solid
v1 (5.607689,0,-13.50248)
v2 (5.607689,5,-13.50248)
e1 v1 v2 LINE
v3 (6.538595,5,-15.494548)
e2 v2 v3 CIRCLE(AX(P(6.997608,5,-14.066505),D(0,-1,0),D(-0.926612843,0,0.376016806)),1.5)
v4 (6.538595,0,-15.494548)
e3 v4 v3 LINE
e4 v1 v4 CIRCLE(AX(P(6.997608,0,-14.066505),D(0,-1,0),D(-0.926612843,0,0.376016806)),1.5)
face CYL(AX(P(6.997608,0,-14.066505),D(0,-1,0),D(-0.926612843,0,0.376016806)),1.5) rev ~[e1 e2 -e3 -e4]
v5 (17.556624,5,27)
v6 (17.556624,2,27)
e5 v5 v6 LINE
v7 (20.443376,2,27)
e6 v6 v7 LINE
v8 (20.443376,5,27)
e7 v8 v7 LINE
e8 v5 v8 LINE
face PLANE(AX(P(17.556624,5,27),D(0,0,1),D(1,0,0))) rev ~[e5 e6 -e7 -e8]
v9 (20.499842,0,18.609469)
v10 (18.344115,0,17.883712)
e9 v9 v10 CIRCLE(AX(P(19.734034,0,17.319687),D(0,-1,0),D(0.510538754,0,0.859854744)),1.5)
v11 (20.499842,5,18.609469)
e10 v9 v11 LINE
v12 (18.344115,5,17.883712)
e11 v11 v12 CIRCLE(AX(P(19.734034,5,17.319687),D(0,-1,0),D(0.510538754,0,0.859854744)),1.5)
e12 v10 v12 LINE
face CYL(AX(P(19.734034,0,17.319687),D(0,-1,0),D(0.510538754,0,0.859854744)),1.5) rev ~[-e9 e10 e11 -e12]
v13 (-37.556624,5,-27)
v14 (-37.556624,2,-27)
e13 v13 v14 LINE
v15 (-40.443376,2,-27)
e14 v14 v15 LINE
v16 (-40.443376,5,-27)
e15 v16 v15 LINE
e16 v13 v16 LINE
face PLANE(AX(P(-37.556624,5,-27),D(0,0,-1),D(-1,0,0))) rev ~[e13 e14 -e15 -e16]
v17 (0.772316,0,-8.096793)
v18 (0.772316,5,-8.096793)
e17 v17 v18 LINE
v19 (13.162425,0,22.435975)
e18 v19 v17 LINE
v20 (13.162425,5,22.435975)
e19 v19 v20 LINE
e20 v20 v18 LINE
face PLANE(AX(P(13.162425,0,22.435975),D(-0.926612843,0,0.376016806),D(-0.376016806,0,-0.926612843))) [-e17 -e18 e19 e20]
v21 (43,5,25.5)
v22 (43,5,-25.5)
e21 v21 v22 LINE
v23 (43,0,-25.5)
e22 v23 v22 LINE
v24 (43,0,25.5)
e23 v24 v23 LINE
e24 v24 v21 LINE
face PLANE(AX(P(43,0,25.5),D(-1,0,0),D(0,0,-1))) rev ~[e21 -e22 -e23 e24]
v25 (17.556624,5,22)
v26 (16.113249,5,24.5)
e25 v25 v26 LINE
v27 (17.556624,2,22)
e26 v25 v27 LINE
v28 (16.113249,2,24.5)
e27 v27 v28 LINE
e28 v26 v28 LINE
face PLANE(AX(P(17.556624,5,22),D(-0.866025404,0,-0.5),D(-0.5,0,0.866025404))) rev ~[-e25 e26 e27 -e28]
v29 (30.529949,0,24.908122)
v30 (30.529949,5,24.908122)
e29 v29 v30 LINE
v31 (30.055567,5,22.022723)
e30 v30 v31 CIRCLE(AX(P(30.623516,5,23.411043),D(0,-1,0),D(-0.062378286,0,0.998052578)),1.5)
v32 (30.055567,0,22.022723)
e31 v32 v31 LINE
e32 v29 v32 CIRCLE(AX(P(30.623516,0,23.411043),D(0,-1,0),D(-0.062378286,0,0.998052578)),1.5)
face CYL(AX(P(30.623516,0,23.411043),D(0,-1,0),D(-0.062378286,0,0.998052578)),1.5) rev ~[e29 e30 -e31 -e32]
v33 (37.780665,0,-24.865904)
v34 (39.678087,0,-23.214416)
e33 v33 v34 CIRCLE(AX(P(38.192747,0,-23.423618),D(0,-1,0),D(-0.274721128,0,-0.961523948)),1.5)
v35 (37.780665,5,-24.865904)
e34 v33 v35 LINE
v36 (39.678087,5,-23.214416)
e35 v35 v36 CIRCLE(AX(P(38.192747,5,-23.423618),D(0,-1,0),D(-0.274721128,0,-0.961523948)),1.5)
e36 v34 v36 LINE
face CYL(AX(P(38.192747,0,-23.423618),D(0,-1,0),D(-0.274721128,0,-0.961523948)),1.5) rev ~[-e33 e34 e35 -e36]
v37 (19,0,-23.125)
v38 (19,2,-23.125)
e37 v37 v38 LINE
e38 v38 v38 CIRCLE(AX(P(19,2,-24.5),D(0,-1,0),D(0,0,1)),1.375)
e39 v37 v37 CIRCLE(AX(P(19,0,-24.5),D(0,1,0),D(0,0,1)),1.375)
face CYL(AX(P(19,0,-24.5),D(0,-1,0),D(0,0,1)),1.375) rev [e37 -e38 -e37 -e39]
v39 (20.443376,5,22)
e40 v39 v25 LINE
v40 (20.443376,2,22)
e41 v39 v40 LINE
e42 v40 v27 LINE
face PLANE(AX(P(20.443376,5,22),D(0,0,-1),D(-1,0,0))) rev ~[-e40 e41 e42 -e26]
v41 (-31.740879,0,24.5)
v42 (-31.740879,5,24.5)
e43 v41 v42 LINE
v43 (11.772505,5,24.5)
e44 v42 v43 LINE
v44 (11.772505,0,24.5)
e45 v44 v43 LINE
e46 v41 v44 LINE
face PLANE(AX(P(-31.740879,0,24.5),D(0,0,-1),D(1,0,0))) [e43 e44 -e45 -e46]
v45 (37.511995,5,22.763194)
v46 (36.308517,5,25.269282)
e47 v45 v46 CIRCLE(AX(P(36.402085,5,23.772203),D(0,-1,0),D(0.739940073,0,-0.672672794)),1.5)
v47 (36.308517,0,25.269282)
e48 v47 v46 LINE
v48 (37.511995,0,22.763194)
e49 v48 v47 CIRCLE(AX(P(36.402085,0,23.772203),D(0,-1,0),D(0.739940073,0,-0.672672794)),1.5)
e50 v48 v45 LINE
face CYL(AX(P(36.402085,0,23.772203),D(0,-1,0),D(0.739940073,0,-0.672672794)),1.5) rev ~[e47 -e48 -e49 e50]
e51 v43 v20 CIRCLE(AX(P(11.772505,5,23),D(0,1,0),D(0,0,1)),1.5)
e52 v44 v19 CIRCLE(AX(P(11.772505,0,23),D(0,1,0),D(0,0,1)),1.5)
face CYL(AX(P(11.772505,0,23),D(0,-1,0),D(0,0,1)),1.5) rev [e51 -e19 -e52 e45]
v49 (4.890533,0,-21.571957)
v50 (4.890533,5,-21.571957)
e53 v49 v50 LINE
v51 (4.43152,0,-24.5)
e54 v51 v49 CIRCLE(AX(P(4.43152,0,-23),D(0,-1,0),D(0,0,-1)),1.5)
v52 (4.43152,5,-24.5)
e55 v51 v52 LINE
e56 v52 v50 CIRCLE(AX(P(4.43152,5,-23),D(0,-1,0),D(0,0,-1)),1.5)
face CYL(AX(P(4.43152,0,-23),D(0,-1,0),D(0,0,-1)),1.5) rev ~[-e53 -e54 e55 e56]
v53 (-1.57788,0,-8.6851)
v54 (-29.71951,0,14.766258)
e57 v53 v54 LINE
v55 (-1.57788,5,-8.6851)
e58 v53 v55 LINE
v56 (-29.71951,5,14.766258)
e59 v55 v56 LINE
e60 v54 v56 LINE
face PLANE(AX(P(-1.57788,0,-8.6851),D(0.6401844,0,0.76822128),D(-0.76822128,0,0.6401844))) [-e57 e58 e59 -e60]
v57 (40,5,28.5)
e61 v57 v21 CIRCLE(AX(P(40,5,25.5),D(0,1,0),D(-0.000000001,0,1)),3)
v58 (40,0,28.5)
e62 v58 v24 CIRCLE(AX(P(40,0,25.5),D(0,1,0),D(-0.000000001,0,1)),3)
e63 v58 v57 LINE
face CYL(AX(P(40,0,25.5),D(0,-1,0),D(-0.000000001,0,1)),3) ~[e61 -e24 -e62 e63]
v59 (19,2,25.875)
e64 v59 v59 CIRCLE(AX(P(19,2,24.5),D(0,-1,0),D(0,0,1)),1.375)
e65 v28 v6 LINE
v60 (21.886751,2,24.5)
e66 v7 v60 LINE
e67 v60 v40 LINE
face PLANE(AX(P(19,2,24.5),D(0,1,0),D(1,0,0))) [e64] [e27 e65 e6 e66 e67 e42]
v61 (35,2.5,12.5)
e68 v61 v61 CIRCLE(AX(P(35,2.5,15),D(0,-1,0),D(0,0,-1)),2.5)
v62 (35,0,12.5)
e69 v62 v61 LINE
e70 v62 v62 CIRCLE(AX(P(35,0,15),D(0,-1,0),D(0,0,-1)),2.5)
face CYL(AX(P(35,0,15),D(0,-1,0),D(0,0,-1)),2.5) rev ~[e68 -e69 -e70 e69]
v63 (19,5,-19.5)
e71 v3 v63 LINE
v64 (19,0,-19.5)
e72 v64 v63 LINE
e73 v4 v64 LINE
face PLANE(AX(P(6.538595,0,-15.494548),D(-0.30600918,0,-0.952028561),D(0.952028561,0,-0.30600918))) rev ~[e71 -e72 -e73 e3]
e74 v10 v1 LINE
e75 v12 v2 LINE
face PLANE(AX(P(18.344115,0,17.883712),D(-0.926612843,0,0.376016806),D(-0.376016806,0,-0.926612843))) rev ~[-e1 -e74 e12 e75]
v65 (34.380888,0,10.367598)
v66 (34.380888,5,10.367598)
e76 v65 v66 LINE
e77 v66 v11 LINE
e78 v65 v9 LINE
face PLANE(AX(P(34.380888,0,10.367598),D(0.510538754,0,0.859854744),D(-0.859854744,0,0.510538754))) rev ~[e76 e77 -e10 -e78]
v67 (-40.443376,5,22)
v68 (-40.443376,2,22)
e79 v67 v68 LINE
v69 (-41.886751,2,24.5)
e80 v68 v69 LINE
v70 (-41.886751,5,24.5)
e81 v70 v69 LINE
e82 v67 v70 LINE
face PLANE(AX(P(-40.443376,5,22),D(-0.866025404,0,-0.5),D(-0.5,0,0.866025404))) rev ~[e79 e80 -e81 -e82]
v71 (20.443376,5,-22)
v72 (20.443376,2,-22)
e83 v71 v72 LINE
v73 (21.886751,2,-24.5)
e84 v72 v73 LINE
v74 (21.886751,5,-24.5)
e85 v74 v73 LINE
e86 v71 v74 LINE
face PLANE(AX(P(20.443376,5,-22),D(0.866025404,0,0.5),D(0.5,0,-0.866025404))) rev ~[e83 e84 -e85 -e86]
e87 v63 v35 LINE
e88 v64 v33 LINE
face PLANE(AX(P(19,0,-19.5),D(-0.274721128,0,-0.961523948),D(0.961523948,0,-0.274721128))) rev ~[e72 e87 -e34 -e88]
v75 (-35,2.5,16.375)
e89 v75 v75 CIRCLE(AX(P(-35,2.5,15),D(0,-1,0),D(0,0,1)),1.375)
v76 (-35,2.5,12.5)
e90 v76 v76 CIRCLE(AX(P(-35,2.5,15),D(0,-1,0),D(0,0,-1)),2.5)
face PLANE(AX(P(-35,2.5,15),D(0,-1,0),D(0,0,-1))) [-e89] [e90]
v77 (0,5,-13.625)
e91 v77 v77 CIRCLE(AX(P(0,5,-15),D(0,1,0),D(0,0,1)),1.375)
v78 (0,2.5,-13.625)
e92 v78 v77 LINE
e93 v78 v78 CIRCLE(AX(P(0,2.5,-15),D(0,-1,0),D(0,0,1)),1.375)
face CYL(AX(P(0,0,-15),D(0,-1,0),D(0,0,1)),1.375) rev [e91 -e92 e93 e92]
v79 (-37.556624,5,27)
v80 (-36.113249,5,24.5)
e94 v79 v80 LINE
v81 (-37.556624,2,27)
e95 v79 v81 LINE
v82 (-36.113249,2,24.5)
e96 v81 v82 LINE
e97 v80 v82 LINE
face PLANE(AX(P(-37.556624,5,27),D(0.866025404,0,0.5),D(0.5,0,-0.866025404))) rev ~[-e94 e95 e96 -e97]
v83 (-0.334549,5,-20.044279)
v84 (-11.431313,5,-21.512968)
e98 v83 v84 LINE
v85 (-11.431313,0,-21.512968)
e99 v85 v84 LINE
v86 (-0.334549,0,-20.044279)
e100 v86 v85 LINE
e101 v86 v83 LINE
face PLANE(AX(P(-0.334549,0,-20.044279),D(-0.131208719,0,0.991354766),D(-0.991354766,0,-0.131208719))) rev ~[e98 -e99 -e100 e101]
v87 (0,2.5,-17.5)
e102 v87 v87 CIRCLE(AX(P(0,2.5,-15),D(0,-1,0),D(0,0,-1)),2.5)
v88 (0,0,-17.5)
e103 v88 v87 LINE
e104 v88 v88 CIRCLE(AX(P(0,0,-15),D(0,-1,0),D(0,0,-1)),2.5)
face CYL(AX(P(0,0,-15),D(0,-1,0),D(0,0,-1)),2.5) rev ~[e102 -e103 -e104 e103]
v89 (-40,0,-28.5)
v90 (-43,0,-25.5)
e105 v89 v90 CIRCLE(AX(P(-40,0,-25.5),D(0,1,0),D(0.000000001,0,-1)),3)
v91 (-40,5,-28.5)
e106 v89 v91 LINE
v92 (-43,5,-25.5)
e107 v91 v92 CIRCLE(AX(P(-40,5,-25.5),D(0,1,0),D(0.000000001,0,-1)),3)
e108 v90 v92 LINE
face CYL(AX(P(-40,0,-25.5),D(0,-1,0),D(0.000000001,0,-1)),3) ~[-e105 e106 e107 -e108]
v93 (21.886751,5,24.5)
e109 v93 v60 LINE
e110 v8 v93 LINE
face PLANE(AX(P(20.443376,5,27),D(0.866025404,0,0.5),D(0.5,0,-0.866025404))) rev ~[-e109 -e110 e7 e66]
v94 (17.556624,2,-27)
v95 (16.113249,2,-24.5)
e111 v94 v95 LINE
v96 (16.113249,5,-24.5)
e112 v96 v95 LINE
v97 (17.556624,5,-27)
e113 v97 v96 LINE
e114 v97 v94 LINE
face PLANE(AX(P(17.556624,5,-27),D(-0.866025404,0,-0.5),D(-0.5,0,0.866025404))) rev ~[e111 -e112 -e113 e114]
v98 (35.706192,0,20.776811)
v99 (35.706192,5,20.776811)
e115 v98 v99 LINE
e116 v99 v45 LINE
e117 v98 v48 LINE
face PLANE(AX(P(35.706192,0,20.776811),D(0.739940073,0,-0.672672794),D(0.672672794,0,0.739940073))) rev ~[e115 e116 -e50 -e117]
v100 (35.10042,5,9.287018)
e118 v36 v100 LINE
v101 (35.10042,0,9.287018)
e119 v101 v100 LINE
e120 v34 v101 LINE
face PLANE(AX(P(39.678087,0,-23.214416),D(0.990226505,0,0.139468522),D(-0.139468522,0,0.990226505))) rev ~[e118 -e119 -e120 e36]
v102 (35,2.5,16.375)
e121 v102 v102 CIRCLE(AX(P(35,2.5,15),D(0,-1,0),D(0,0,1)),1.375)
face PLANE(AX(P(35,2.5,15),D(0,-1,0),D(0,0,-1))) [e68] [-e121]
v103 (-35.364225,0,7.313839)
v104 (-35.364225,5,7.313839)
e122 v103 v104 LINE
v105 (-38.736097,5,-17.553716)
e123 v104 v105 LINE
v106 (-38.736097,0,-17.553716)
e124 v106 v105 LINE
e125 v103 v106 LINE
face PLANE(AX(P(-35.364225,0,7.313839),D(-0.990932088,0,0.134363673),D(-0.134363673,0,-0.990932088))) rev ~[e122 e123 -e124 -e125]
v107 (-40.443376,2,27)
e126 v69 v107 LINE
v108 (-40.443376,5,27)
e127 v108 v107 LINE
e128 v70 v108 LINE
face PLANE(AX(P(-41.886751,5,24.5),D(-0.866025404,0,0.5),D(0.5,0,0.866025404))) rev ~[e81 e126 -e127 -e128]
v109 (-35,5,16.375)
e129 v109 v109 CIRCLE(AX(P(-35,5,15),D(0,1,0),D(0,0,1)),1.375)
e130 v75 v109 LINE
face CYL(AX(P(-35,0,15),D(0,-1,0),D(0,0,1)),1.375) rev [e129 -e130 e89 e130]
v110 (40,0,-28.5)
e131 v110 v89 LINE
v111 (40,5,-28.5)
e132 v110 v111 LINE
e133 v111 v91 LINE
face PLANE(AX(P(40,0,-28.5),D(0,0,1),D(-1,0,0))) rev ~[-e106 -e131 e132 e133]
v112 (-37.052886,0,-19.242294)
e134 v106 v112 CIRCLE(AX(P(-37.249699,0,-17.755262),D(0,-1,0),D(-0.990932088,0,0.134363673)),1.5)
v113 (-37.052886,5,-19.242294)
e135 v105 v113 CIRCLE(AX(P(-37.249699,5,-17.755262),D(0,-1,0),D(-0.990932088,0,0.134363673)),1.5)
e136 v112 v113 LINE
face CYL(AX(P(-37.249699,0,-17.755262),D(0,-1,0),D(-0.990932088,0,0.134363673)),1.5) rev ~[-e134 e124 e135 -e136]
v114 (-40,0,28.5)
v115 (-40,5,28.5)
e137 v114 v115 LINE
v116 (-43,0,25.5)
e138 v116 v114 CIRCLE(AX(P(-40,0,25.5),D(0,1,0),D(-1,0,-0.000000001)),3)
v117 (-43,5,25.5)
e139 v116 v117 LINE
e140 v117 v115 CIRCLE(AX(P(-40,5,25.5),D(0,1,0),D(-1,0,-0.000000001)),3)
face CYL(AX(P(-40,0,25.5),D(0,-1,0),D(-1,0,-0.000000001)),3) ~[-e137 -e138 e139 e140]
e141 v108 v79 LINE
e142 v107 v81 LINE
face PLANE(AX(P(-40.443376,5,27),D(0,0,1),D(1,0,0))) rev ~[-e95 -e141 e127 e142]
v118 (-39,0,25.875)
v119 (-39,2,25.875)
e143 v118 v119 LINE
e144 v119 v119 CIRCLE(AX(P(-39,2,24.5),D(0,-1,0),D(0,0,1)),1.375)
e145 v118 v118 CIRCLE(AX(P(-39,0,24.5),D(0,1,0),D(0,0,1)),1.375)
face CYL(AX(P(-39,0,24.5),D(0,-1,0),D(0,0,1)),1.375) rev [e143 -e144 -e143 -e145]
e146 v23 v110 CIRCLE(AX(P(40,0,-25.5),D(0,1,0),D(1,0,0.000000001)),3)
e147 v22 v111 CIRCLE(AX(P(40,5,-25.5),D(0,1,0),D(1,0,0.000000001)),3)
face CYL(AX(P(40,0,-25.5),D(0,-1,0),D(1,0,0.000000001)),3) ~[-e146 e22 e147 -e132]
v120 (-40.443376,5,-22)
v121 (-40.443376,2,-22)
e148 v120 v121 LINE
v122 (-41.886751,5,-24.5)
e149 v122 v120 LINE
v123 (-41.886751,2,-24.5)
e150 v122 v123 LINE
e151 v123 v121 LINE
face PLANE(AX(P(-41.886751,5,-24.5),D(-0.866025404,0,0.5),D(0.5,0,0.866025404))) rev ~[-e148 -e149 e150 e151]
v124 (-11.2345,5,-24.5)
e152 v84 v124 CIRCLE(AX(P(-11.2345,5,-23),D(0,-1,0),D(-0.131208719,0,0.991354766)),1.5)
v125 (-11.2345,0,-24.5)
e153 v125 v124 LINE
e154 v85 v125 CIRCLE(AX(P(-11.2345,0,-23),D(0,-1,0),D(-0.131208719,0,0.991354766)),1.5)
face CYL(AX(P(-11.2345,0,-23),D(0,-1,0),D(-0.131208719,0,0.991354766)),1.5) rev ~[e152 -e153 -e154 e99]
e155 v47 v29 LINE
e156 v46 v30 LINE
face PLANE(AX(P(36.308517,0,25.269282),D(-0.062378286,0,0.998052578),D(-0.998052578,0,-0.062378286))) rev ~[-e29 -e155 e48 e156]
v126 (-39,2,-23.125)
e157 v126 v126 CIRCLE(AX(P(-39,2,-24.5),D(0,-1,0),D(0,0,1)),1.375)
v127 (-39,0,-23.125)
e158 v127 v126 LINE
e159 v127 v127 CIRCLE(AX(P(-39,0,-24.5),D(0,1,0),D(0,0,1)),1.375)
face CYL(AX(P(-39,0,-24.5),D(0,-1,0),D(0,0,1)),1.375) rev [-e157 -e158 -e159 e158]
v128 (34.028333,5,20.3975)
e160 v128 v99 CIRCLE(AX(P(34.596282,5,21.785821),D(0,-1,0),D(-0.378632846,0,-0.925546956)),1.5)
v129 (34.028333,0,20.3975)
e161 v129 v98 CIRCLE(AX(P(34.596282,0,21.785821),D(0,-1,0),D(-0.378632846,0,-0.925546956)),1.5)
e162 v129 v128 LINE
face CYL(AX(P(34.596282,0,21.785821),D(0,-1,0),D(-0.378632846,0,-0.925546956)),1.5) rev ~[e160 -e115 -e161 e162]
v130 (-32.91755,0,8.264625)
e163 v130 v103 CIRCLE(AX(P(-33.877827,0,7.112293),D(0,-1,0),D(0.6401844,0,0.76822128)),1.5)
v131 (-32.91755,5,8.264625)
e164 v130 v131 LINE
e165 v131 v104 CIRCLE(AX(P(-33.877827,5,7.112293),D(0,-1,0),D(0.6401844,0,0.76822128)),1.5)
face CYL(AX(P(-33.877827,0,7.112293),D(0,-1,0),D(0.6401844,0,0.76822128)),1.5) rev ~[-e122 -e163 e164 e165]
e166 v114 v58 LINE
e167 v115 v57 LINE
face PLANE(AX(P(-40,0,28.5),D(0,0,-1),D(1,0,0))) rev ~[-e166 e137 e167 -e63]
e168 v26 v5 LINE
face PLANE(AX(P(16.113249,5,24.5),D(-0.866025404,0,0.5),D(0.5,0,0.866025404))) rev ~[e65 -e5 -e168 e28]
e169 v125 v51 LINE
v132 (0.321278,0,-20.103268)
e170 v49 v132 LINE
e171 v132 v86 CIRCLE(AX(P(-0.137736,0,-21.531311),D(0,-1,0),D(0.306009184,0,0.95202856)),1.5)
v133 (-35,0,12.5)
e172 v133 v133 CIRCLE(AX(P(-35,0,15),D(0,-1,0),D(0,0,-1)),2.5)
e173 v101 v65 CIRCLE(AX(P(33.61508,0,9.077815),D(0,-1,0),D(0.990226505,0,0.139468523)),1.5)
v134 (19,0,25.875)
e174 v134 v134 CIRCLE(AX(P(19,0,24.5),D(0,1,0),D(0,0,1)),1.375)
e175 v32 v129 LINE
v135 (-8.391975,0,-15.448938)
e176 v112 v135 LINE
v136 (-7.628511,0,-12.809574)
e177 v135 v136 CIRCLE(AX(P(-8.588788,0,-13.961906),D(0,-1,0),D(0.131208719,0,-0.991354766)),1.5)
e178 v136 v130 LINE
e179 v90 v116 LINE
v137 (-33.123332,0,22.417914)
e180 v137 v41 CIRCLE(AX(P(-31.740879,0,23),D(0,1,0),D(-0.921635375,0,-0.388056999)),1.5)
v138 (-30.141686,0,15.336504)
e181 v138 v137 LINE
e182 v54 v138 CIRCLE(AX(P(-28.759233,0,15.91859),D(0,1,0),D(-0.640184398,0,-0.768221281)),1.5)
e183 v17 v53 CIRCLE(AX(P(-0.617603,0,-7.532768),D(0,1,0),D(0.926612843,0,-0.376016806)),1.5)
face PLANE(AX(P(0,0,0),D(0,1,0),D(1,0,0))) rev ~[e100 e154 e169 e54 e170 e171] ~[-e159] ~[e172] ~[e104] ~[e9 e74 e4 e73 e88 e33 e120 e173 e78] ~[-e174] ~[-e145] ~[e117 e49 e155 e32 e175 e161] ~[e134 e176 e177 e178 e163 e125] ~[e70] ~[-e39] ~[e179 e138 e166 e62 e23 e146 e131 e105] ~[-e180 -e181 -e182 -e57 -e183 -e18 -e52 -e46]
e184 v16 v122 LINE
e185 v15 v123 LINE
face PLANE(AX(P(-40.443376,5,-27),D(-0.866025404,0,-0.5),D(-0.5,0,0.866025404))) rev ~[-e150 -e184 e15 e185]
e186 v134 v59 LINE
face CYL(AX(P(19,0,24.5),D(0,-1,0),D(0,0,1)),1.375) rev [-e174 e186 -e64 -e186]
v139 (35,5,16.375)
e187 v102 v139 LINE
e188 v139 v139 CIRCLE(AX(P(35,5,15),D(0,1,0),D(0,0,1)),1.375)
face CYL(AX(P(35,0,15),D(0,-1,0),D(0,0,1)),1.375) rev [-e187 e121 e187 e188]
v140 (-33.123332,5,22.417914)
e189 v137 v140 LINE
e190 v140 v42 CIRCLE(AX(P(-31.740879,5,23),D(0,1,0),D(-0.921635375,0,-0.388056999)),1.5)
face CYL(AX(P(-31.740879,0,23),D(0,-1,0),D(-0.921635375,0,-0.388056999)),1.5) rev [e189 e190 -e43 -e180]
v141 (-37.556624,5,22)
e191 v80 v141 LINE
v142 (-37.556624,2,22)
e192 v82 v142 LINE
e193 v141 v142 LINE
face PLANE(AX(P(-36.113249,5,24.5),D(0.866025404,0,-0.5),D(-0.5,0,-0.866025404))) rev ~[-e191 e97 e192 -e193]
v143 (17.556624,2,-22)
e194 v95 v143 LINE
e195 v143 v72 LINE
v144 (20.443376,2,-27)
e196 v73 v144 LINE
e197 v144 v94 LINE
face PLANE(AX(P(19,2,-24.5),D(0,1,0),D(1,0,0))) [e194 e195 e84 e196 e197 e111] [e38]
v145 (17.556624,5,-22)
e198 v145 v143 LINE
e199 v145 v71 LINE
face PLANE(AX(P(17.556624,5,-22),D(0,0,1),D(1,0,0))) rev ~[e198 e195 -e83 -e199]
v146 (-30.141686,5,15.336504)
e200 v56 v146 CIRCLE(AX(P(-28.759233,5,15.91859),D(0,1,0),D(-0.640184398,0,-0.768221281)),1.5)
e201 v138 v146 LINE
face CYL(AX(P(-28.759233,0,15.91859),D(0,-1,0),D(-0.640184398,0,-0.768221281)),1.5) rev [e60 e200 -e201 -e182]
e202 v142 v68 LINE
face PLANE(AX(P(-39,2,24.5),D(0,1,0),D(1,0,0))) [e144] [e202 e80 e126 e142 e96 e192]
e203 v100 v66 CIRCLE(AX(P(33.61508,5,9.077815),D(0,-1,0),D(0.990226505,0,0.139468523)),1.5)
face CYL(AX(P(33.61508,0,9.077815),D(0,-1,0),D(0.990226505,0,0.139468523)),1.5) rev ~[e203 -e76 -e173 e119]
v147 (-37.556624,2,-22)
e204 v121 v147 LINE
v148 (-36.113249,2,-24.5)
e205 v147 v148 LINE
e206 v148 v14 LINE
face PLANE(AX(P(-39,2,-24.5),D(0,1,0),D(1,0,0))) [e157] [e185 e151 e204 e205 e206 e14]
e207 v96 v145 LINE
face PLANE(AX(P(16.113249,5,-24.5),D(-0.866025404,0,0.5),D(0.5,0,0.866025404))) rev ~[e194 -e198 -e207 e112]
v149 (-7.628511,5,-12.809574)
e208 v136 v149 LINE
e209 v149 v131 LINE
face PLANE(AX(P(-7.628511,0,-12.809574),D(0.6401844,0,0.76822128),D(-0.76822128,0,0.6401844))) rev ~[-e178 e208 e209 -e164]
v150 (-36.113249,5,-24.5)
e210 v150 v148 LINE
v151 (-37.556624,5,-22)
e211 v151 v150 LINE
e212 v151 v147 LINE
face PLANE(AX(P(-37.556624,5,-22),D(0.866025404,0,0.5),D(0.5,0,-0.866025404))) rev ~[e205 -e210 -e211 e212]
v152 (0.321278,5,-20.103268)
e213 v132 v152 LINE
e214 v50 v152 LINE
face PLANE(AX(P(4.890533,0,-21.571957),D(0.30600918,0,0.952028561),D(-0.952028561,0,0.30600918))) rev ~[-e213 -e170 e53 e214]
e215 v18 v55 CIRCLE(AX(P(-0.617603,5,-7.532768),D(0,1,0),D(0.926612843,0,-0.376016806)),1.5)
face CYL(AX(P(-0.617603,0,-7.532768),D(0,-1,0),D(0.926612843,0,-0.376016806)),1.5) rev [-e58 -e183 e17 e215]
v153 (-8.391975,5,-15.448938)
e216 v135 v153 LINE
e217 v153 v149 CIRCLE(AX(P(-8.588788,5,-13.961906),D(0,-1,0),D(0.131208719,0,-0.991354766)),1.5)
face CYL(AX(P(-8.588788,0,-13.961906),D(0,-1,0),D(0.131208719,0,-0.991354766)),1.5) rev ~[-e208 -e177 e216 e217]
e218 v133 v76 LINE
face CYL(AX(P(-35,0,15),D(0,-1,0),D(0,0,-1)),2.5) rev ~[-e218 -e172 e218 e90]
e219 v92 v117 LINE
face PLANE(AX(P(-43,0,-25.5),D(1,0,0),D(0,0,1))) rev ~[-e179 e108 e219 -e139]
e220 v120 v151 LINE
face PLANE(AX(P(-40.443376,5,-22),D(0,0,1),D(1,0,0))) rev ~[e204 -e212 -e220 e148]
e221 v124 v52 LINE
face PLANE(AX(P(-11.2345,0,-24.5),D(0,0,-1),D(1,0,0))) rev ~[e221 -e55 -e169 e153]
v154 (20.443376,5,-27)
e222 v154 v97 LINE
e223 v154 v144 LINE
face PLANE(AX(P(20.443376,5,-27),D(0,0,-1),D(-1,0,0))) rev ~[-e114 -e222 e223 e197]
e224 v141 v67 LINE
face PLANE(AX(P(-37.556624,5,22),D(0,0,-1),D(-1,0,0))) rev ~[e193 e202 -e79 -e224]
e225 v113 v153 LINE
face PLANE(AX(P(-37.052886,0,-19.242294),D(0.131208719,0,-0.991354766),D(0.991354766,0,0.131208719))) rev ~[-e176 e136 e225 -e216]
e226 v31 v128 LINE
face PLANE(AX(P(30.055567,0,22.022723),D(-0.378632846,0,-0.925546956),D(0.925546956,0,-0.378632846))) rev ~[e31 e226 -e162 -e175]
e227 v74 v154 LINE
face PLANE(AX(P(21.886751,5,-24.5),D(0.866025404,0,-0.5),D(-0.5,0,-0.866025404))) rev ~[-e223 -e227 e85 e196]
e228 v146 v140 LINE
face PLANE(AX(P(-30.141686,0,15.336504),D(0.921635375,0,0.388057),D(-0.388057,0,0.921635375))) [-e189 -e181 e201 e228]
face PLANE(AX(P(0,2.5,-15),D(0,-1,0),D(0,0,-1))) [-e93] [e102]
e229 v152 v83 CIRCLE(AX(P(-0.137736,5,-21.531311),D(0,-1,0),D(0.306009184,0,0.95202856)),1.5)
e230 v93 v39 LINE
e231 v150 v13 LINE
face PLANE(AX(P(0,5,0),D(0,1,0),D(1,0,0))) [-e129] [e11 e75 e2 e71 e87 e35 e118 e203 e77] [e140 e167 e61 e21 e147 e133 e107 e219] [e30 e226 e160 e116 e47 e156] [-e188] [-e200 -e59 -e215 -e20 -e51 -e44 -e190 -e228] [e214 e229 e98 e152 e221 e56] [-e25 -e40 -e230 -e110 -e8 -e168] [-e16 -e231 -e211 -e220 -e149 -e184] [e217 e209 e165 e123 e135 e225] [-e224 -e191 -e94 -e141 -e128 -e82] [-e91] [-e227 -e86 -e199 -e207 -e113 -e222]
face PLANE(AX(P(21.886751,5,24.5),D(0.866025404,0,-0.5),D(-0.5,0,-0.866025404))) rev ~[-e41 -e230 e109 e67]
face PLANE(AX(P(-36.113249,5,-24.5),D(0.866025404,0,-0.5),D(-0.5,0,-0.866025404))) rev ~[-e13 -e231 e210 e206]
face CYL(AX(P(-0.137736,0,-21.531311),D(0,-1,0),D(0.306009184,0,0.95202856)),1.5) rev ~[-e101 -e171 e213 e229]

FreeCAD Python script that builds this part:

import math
import FreeCAD as App
import Part
import Sketcher

V = App.Vector
Q = App.Units.Quantity

doc = App.newDocument("Part")
body = doc.addObject("PartDesign::Body", "Body")

# Sketch on XZ plane
sketch1 = doc.addObject("Sketcher::SketchObject", "Sketch")
body.addObject(sketch1)
sketch1.AttachmentSupport = (doc.XZ_Plane, [""])
sketch1.MapMode = "FlatFace"
sketch1.addGeometry([
    Part.LineSegment(V(-40, 28.5, 0), V(40, 28.5, 0)),  # 0
    Part.ArcOfCircle(Part.Circle(V(40, 25.5, 0), V(0, 0, 1), 3), math.radians(0), math.radians(90)),  # 1
    Part.LineSegment(V(43, 25.5, 0), V(43, -25.5, 0)),  # 2
    Part.ArcOfCircle(Part.Circle(V(40, -25.5, 0), V(0, 0, 1), 3), math.radians(-90), math.radians(0)),  # 3
    Part.LineSegment(V(40, -28.5, 0), V(-40, -28.5, 0)),  # 4
    Part.ArcOfCircle(Part.Circle(V(-40, -25.5, 0), V(0, 0, 1), 3), math.radians(180), math.radians(270)),  # 5
    Part.LineSegment(V(-43, -25.5, 0), V(-43, 25.5, 0)),  # 6
    Part.ArcOfCircle(Part.Circle(V(-40, 25.5, 0), V(0, 0, 1), 3), math.radians(90), math.radians(180)),  # 7
    Part.Circle(V(-39, 24.5, 0), V(0, 0, 1), 1.375),  # 8
    Part.Circle(V(-35, 15, 0), V(0, 0, 1), 1.375),  # 9
    Part.LineSegment(V(-29.71951, 14.766258, 0), V(-1.57788, -8.6851, 0)),  # 10
    Part.ArcOfCircle(Part.Circle(V(-0.617603, -7.532768, 0), V(0, 0, 1), 1.5), math.radians(-129.805571), math.radians(-22.087172)),  # 11
    Part.LineSegment(V(0.772316, -8.096793, 0), V(13.162425, 22.435975, 0)),  # 12
    Part.ArcOfCircle(Part.Circle(V(11.772505, 23, 0), V(0, 0, 1), 1.5), math.radians(-22.087172), math.radians(90)),  # 13
    Part.LineSegment(V(11.772505, 24.5, 0), V(-31.740879, 24.5, 0)),  # 14
    Part.ArcOfCircle(Part.Circle(V(-31.740879, 23, 0), V(0, 0, 1), 1.5), math.radians(90), math.radians(202.833654)),  # 15
    Part.LineSegment(V(-33.123332, 22.417914, 0), V(-30.141686, 15.336504, 0)),  # 16
    Part.ArcOfCircle(Part.Circle(V(-28.759233, 15.91859, 0), V(0, 0, 1), 1.5), math.radians(-157.166346), math.radians(-129.805571)),  # 17
    Part.Circle(V(19, 24.5, 0), V(0, 0, 1), 1.375),  # 18
    Part.ArcOfCircle(Part.Circle(V(30.623516, 23.411043, 0), V(0, 0, 1), 1.5), math.radians(93.576334), math.radians(247.750976)),  # 19
    Part.LineSegment(V(30.055567, 22.022723, 0), V(34.028333, 20.3975, 0)),  # 20
    Part.ArcOfCircle(Part.Circle(V(34.596282, 21.785821, 0), V(0, 0, 1), 1.5), math.radians(-112.249024), math.radians(-42.273689)),  # 21
    Part.LineSegment(V(35.706192, 20.776811, 0), V(37.511995, 22.763194, 0)),  # 22
    Part.ArcOfCircle(Part.Circle(V(36.402085, 23.772203, 0), V(0, 0, 1), 1.5), math.radians(-42.273689), math.radians(93.576334)),  # 23
    Part.LineSegment(V(36.308517, 25.269282, 0), V(30.529949, 24.908122, 0)),  # 24
    Part.Circle(V(35, 15, 0), V(0, 0, 1), 1.375),  # 25
    Part.ArcOfCircle(Part.Circle(V(-37.249699, -17.755262, 0), V(0, 0, 1), 1.5), math.radians(172.278174), math.radians(277.539445)),  # 26
    Part.LineSegment(V(-37.052886, -19.242294, 0), V(-8.391975, -15.448938, 0)),  # 27
    Part.ArcOfCircle(Part.Circle(V(-8.588788, -13.961906, 0), V(0, 0, 1), 1.5), math.radians(-82.460555), math.radians(50.194429)),  # 28
    Part.LineSegment(V(-7.628511, -12.809574, 0), V(-32.91755, 8.264625, 0)),  # 29
    Part.ArcOfCircle(Part.Circle(V(-33.877827, 7.112293, 0), V(0, 0, 1), 1.5), math.radians(50.194429), math.radians(172.278174)),  # 30
    Part.LineSegment(V(-35.364225, 7.313839, 0), V(-38.736097, -17.553716, 0)),  # 31
    Part.Circle(V(-39, -24.5, 0), V(0, 0, 1), 1.375),  # 32
    Part.ArcOfCircle(Part.Circle(V(-11.2345, -23, 0), V(0, 0, 1), 1.5), math.radians(97.539445), math.radians(270)),  # 33
    Part.LineSegment(V(-11.2345, -24.5, 0), V(4.43152, -24.5, 0)),  # 34
    Part.ArcOfCircle(Part.Circle(V(4.43152, -23, 0), V(0, 0, 1), 1.5), math.radians(-90), math.radians(72.181111)),  # 35
    Part.LineSegment(V(4.890533, -21.571957, 0), V(0.321278, -20.103268, 0)),  # 36
    Part.ArcOfCircle(Part.Circle(V(-0.137736, -21.531311, 0), V(0, 0, 1), 1.5), math.radians(72.181111), math.radians(97.539445)),  # 37
    Part.LineSegment(V(-0.334549, -20.044279, 0), V(-11.431313, -21.512968, 0)),  # 38
    Part.ArcOfCircle(Part.Circle(V(6.997608, -14.066505, 0), V(0, 0, 1), 1.5), math.radians(157.912828), math.radians(252.181111)),  # 39
    Part.LineSegment(V(6.538595, -15.494548, 0), V(19, -19.5, 0)),  # 40
    Part.LineSegment(V(19, -19.5, 0), V(37.780665, -24.865904, 0)),  # 41
    Part.ArcOfCircle(Part.Circle(V(38.192747, -23.423618, 0), V(0, 0, 1), 1.5), math.radians(-105.945396), math.radians(8.017093)),  # 42
    Part.LineSegment(V(39.678087, -23.214416, 0), V(35.10042, 9.287018, 0)),  # 43
    Part.ArcOfCircle(Part.Circle(V(33.61508, 9.077815, 0), V(0, 0, 1), 1.5), math.radians(8.017093), math.radians(59.300277)),  # 44
    Part.LineSegment(V(34.380888, 10.367598, 0), V(20.499842, 18.609469, 0)),  # 45
    Part.ArcOfCircle(Part.Circle(V(19.734034, 17.319687, 0), V(0, 0, 1), 1.5), math.radians(59.300277), math.radians(157.912828)),  # 46
    Part.LineSegment(V(18.344115, 17.883712, 0), V(5.607689, -13.50248, 0)),  # 47
    Part.Circle(V(0, -15, 0), V(0, 0, 1), 1.375),  # 48
    Part.Circle(V(19, -24.5, 0), V(0, 0, 1), 1.375),  # 49
], False)
sketch1.addConstraint([
    Sketcher.Constraint("Coincident", 0, 2, 1, 2),
    Sketcher.Constraint("Coincident", 1, 1, 2, 1),
    Sketcher.Constraint("Coincident", 2, 2, 3, 2),
    Sketcher.Constraint("Coincident", 3, 1, 4, 1),
    Sketcher.Constraint("Coincident", 4, 2, 5, 2),
    Sketcher.Constraint("Coincident", 5, 1, 6, 1),
    Sketcher.Constraint("Coincident", 6, 2, 7, 2),
    Sketcher.Constraint("Coincident", 7, 1, 0, 1),
    Sketcher.Constraint("Coincident", 10, 2, 11, 1),
    Sketcher.Constraint("Coincident", 11, 2, 12, 1),
    Sketcher.Constraint("Coincident", 12, 2, 13, 1),
    Sketcher.Constraint("Coincident", 13, 2, 14, 1),
    Sketcher.Constraint("Coincident", 14, 2, 15, 1),
    Sketcher.Constraint("Coincident", 15, 2, 16, 1),
    Sketcher.Constraint("Coincident", 16, 2, 17, 1),
    Sketcher.Constraint("Coincident", 17, 2, 10, 1),
    Sketcher.Constraint("Coincident", 19, 2, 20, 1),
    Sketcher.Constraint("Coincident", 20, 2, 21, 1),
    Sketcher.Constraint("Coincident", 21, 2, 22, 1),
    Sketcher.Constraint("Coincident", 22, 2, 23, 1),
    Sketcher.Constraint("Coincident", 23, 2, 24, 1),
    Sketcher.Constraint("Coincident", 24, 2, 19, 1),
    Sketcher.Constraint("Coincident", 26, 2, 27, 1),
    Sketcher.Constraint("Coincident", 27, 2, 28, 1),
    Sketcher.Constraint("Coincident", 28, 2, 29, 1),
    Sketcher.Constraint("Coincident", 29, 2, 30, 1),
    Sketcher.Constraint("Coincident", 30, 2, 31, 1),
    Sketcher.Constraint("Coincident", 31, 2, 26, 1),
    Sketcher.Constraint("Coincident", 33, 2, 34, 1),
    Sketcher.Constraint("Coincident", 34, 2, 35, 1),
    Sketcher.Constraint("Coincident", 35, 2, 36, 1),
    Sketcher.Constraint("Coincident", 36, 2, 37, 1),
    Sketcher.Constraint("Coincident", 37, 2, 38, 1),
    Sketcher.Constraint("Coincident", 38, 2, 33, 1),
    Sketcher.Constraint("Coincident", 39, 2, 40, 1),
    Sketcher.Constraint("Coincident", 40, 2, 41, 1),
    Sketcher.Constraint("Coincident", 41, 2, 42, 1),
    Sketcher.Constraint("Coincident", 42, 2, 43, 1),
    Sketcher.Constraint("Coincident", 43, 2, 44, 1),
    Sketcher.Constraint("Coincident", 44, 2, 45, 1),
    Sketcher.Constraint("Coincident", 45, 2, 46, 1),
    Sketcher.Constraint("Coincident", 46, 2, 47, 1),
    Sketcher.Constraint("Coincident", 47, 2, 39, 1),
    Sketcher.Constraint("Horizontal", 0),
    Sketcher.Constraint("Vertical", 2),
    Sketcher.Constraint("Horizontal", 4),
    Sketcher.Constraint("Vertical", 6),
    Sketcher.Constraint("Horizontal", 14),
    Sketcher.Constraint("Horizontal", 34),
    Sketcher.Constraint("PointOnObject", 48, 3, -2),
    Sketcher.Constraint("Radius", 1, 3.0),
    Sketcher.Constraint("Radius", 3, 3.0),
    Sketcher.Constraint("Radius", 5, 3.0),
    Sketcher.Constraint("Radius", 7, 3.0),
    Sketcher.Constraint("Radius", 11, 1.5),
    Sketcher.Constraint("Radius", 13, 1.5),
    Sketcher.Constraint("Radius", 15, 1.5),
    Sketcher.Constraint("Radius", 17, 1.5),
    Sketcher.Constraint("Radius", 19, 1.5),
    Sketcher.Constraint("Radius", 21, 1.5),
    Sketcher.Constraint("Radius", 23, 1.5),
    Sketcher.Constraint("Radius", 26, 1.5),
    Sketcher.Constraint("Radius", 28, 1.5),
    Sketcher.Constraint("Radius", 30, 1.5),
    Sketcher.Constraint("Radius", 33, 1.5),
    Sketcher.Constraint("Radius", 35, 1.5),
    Sketcher.Constraint("Radius", 37, 1.5),
    Sketcher.Constraint("Radius", 39, 1.5),
    Sketcher.Constraint("Radius", 42, 1.5),
    Sketcher.Constraint("Radius", 44, 1.5),
    Sketcher.Constraint("Radius", 46, 1.5),
    Sketcher.Constraint("Diameter", 8, 2.75),
    Sketcher.Constraint("Diameter", 9, 2.75),
    Sketcher.Constraint("Diameter", 18, 2.75),
    Sketcher.Constraint("Diameter", 25, 2.75),
    Sketcher.Constraint("Diameter", 32, 2.75),
    Sketcher.Constraint("Diameter", 48, 2.75),
    Sketcher.Constraint("Diameter", 49, 2.75),
    Sketcher.Constraint("DistanceX", 0, 1, 0, 2, 80.0),
    Sketcher.Constraint("DistanceX", 4, 2, 4, 1, 80.0),
    Sketcher.Constraint("DistanceY", 2, 2, 2, 1, 51.0),
    Sketcher.Constraint("DistanceY", 6, 1, 6, 2, 51.0),
    Sketcher.Constraint("DistanceX", -1, 1, 1, 3, 40.0),
    Sketcher.Constraint("DistanceX", 5, 3, -1, 1, 40.0),
    Sketcher.Constraint("DistanceX", 8, 3, -1, 1, 39.0),
    Sketcher.Constraint("DistanceX", 9, 3, -1, 1, 35.0),
    Sketcher.Constraint("DistanceY", -1, 1, 9, 3, 15.0),
    Sketcher.Constraint("DistanceY", -1, 1, 13, 3, 23.0),
    Sketcher.Constraint("DistanceX", -1, 1, 18, 3, 19.0),
    Sketcher.Constraint("DistanceX", -1, 1, 25, 3, 35.0),
    Sketcher.Constraint("DistanceY", -1, 1, 25, 3, 15.0),
    Sketcher.Constraint("DistanceX", 32, 3, -1, 1, 39.0),
    Sketcher.Constraint("DistanceY", 33, 3, -1, 1, 23.0),
    Sketcher.Constraint("DistanceY", 48, 3, -1, 1, 15.0),
    Sketcher.Constraint("DistanceX", -1, 1, 49, 3, 19.0),
    Sketcher.Constraint("DistanceX", -1, 1, 0, 2, 40.0),
    Sketcher.Constraint("DistanceX", -1, 1, 3, 1, 40.0),
    Sketcher.Constraint("DistanceX", -1, 1, 40, 2, 19.0),
    Sketcher.Constraint("DistanceY", -1, 1, 1, 3, 25.5),
    Sketcher.Constraint("DistanceY", 3, 3, -1, 1, 25.5),
    Sketcher.Constraint("DistanceY", -1, 1, 8, 3, 24.5),
    Sketcher.Constraint("DistanceY", -1, 1, 18, 3, 24.5),
    Sketcher.Constraint("DistanceY", 32, 3, -1, 1, 24.5),
    Sketcher.Constraint("DistanceY", 49, 3, -1, 1, 24.5),
    Sketcher.Constraint("DistanceY", -1, 1, 1, 1, 25.5),
    Sketcher.Constraint("DistanceY", 5, 1, -1, 1, 25.5),
    Sketcher.Constraint("DistanceY", 40, 2, -1, 1, 19.5),
    Sketcher.Constraint("DistanceX", 34, 1, 34, 2, 15.666019),
    Sketcher.Constraint("DistanceX", 26, 3, -1, 1, 37.249699),
    Sketcher.Constraint("DistanceX", 33, 3, -1, 1, 11.2345),
    Sketcher.Constraint("DistanceY", 10, 2, -1, 1, 8.6851),
    Sketcher.Constraint("DistanceY", -1, 1, 20, 2, 20.3975),
    Sketcher.Constraint("DistanceX", 33, 2, -1, 1, 11.2345),
    Sketcher.Constraint("Distance", 22, 2.684519),
    Sketcher.Constraint("Distance", 27, 28.910852),
    Sketcher.Constraint("Distance", 29, 32.918951),
    Sketcher.Constraint("Distance", 40, 13.089319),
    Sketcher.Constraint("Distance", 43, 32.822222),
    Sketcher.Constraint("Distance", 47, 33.871959),
    Sketcher.Constraint("DistanceX", 14, 2, 14, 1, 43.513385),
    Sketcher.Constraint("DistanceY", 11, 3, -1, 1, 7.532768),
    Sketcher.Constraint("DistanceX", 15, 3, -1, 1, 31.740879),
    Sketcher.Constraint("DistanceY", -1, 1, 17, 3, 15.91859),
    Sketcher.Constraint("DistanceY", -1, 1, 21, 3, 21.785821),
    Sketcher.Constraint("DistanceY", 26, 3, -1, 1, 17.755262),
    Sketcher.Constraint("DistanceX", 28, 3, -1, 1, 8.588788),
    Sketcher.Constraint("DistanceX", -1, 1, 35, 3, 4.43152),
    Sketcher.Constraint("DistanceY", 37, 3, -1, 1, 21.531311),
    Sketcher.Constraint("DistanceX", -1, 1, 39, 3, 6.997608),
    Sketcher.Constraint("DistanceY", 42, 3, -1, 1, 23.423618),
    Sketcher.Constraint("DistanceX", -1, 1, 44, 3, 33.61508),
    Sketcher.Constraint("DistanceX", 10, 2, -1, 1, 1.57788),
    Sketcher.Constraint("DistanceX", 14, 2, -1, 1, 31.740879),
    Sketcher.Constraint("DistanceX", 17, 2, -1, 1, 29.71951),
    Sketcher.Constraint("DistanceY", -1, 1, 17, 2, 14.766258),
    Sketcher.Constraint("DistanceY", -1, 1, 21, 2, 20.776811),
    Sketcher.Constraint("DistanceX", -1, 1, 24, 2, 30.529949),
    Sketcher.Constraint("DistanceY", -1, 1, 24, 2, 24.908122),
    Sketcher.Constraint("DistanceX", 28, 2, -1, 1, 7.628511),
    Sketcher.Constraint("DistanceX", 29, 2, -1, 1, 32.91755),
    Sketcher.Constraint("DistanceY", -1, 1, 30, 2, 7.313839),
    Sketcher.Constraint("DistanceX", 37, 2, -1, 1, 0.334549),
    Sketcher.Constraint("DistanceY", 37, 2, -1, 1, 20.044279),
    Sketcher.Constraint("DistanceY", 39, 2, -1, 1, 15.494548),
    Sketcher.Constraint("DistanceX", -1, 1, 43, 2, 35.10042),
    Sketcher.Constraint("DistanceY", -1, 1, 43, 2, 9.287018),
    Sketcher.Constraint("DistanceX", -1, 1, 44, 2, 34.380888),
    Sketcher.Constraint("DistanceY", -1, 1, 45, 2, 18.609469),
    Sketcher.Constraint("DistanceY", -1, 1, 46, 2, 17.883712),
    Sketcher.Constraint("DistanceX", -1, 1, 47, 2, 5.607689),
    Sketcher.Constraint("Distance", 12, 32.950944),
    Sketcher.Constraint("Distance", 16, 7.683527),
    Sketcher.Constraint("Distance", 20, 4.292344),
    Sketcher.Constraint("Distance", 24, 5.789843),
    Sketcher.Constraint("Distance", 31, 25.095115),
    Sketcher.Constraint("Distance", 36, 4.799494),
    Sketcher.Constraint("Distance", 38, 11.193534),
    Sketcher.Constraint("Distance", 41, 19.532187),
    Sketcher.Constraint("Distance", 45, 16.143478),
    Sketcher.Constraint("DistanceX", -1, 1, 13, 3, 11.772505),
    Sketcher.Constraint("DistanceX", -1, 1, 19, 3, 30.623516),
    Sketcher.Constraint("DistanceX", -1, 1, 21, 3, 34.596282),
    Sketcher.Constraint("DistanceX", -1, 1, 23, 3, 36.402085),
    Sketcher.Constraint("DistanceY", -1, 1, 23, 3, 23.772203),
    Sketcher.Constraint("DistanceY", 28, 3, -1, 1, 13.961906),
    Sketcher.Constraint("DistanceX", 30, 3, -1, 1, 33.877827),
    Sketcher.Constraint("DistanceX", -1, 1, 42, 3, 38.192747),
    Sketcher.Constraint("DistanceX", -1, 1, 11, 2, 0.772316),
    Sketcher.Constraint("DistanceX", 15, 2, -1, 1, 33.123332),
    Sketcher.Constraint("DistanceX", 26, 2, -1, 1, 37.052886),
    Sketcher.Constraint("DistanceX", -1, 1, 35, 2, 4.890533),
])
pad1 = doc.addObject("PartDesign::Pad", "Pad")
body.addObject(pad1)
pad1.Profile = sketch1
pad1.Length = 5
pad1.Reversed = True

# Sketch on XZ plane
sketch2 = doc.addObject("Sketcher::SketchObject", "Sketch001")
body.addObject(sketch2)
sketch2.AttachmentSupport = (doc.XZ_Plane, [""])
sketch2.MapMode = "FlatFace"
sketch2.AttachmentOffset = App.Placement(V(0, 0, -5), App.Rotation())
sketch2.addGeometry([
    Part.LineSegment(V(-36.1, -24.5, 0), V(-37.6, -27, 0)),  # 0
    Part.LineSegment(V(-37.6, -27, 0), V(-40.4, -27, 0)),  # 1
    Part.LineSegment(V(-40.4, -27, 0), V(-41.9, -24.5, 0)),  # 2
    Part.LineSegment(V(-41.9, -24.5, 0), V(-40.4, -22, 0)),  # 3
    Part.LineSegment(V(-40.4, -22, 0), V(-37.6, -22, 0)),  # 4
    Part.LineSegment(V(-37.6, -22, 0), V(-36.1, -24.5, 0)),  # 5
    Part.LineSegment(V(20.4, -27, 0), V(17.6, -27, 0)),  # 6
    Part.LineSegment(V(17.6, -27, 0), V(16.1, -24.5, 0)),  # 7
    Part.LineSegment(V(16.1, -24.5, 0), V(17.6, -22, 0)),  # 8
    Part.LineSegment(V(17.6, -22, 0), V(20.4, -22, 0)),  # 9
    Part.LineSegment(V(20.4, -22, 0), V(21.9, -24.5, 0)),  # 10
    Part.LineSegment(V(21.9, -24.5, 0), V(20.4, -27, 0)),  # 11
    Part.LineSegment(V(20.4, 22, 0), V(17.6, 22, 0)),  # 12
    Part.LineSegment(V(17.6, 22, 0), V(16.1, 24.5, 0)),  # 13
    Part.LineSegment(V(16.1, 24.5, 0), V(17.6, 27, 0)),  # 14
    Part.LineSegment(V(17.6, 27, 0), V(20.4, 27, 0)),  # 15
    Part.LineSegment(V(20.4, 27, 0), V(21.9, 24.5, 0)),  # 16
    Part.LineSegment(V(21.9, 24.5, 0), V(20.4, 22, 0)),  # 17
    Part.LineSegment(V(-36.1, 24.5, 0), V(-37.6, 22, 0)),  # 18
    Part.LineSegment(V(-37.6, 22, 0), V(-40.4, 22, 0)),  # 19
    Part.LineSegment(V(-40.4, 22, 0), V(-41.9, 24.5, 0)),  # 20
    Part.LineSegment(V(-41.9, 24.5, 0), V(-40.4, 27, 0)),  # 21
    Part.LineSegment(V(-40.4, 27, 0), V(-37.6, 27, 0)),  # 22
    Part.LineSegment(V(-37.6, 27, 0), V(-36.1, 24.5, 0)),  # 23
], False)
sketch2.addConstraint([
    Sketcher.Constraint("Coincident", 0, 2, 1, 1),
    Sketcher.Constraint("Coincident", 1, 2, 2, 1),
    Sketcher.Constraint("Coincident", 2, 2, 3, 1),
    Sketcher.Constraint("Coincident", 3, 2, 4, 1),
    Sketcher.Constraint("Coincident", 4, 2, 5, 1),
    Sketcher.Constraint("Coincident", 5, 2, 0, 1),
    Sketcher.Constraint("Coincident", 6, 2, 7, 1),
    Sketcher.Constraint("Coincident", 7, 2, 8, 1),
    Sketcher.Constraint("Coincident", 8, 2, 9, 1),
    Sketcher.Constraint("Coincident", 9, 2, 10, 1),
    Sketcher.Constraint("Coincident", 10, 2, 11, 1),
    Sketcher.Constraint("Coincident", 11, 2, 6, 1),
    Sketcher.Constraint("Coincident", 12, 2, 13, 1),
    Sketcher.Constraint("Coincident", 13, 2, 14, 1),
    Sketcher.Constraint("Coincident", 14, 2, 15, 1),
    Sketcher.Constraint("Coincident", 15, 2, 16, 1),
    Sketcher.Constraint("Coincident", 16, 2, 17, 1),
    Sketcher.Constraint("Coincident", 17, 2, 12, 1),
    Sketcher.Constraint("Coincident", 18, 2, 19, 1),
    Sketcher.Constraint("Coincident", 19, 2, 20, 1),
    Sketcher.Constraint("Coincident", 20, 2, 21, 1),
    Sketcher.Constraint("Coincident", 21, 2, 22, 1),
    Sketcher.Constraint("Coincident", 22, 2, 23, 1),
    Sketcher.Constraint("Coincident", 23, 2, 18, 1),
    Sketcher.Constraint("Horizontal", 1),
    Sketcher.Constraint("Horizontal", 4),
    Sketcher.Constraint("Horizontal", 6),
    Sketcher.Constraint("Horizontal", 9),
    Sketcher.Constraint("Horizontal", 12),
    Sketcher.Constraint("Horizontal", 15),
    Sketcher.Constraint("Horizontal", 19),
    Sketcher.Constraint("Horizontal", 22),
    Sketcher.Constraint("Symmetric", 8, 2, 12, 2, -1),
    Sketcher.Constraint("Symmetric", 7, 2, 13, 2, -1),
    Sketcher.Constraint("Symmetric", 6, 2, 14, 2, -1),
    Sketcher.Constraint("Symmetric", 10, 2, 16, 2, -1),
    Sketcher.Constraint("Symmetric", 4, 2, 18, 2, -1),
    Sketcher.Constraint("Symmetric", 2, 2, 20, 2, -1),
    Sketcher.Constraint("Symmetric", 1, 2, 21, 2, -1),
    Sketcher.Constraint("Symmetric", 5, 2, 23, 2, -1),
    Sketcher.Constraint("Parallel", 0, 3),
    Sketcher.Constraint("Parallel", 2, 5),
    Sketcher.Constraint("Parallel", 5, 7),
    Sketcher.Constraint("Parallel", 3, 8),
    Sketcher.Constraint("Parallel", 7, 10),
    Sketcher.Constraint("Parallel", 8, 11),
    Sketcher.Constraint("Parallel", 10, 13),
    Sketcher.Constraint("Parallel", 13, 16),
    Sketcher.Constraint("Parallel", 14, 17),
    Sketcher.Constraint("Parallel", 16, 20),
    Sketcher.Constraint("Parallel", 20, 23),
    Sketcher.Constraint("Horizontal", 2, 2, 5, 2),
    Sketcher.Constraint("Horizontal", 1, 2, 6, 2),
    Sketcher.Constraint("Horizontal", 5, 2, 7, 2),
    Sketcher.Constraint("Horizontal", 4, 2, 8, 2),
    Sketcher.Constraint("Horizontal", 7, 2, 10, 2),
    Sketcher.Constraint("Vertical", 1, 2, 3, 2),
    Sketcher.Constraint("Equal", 4, 6),
    Sketcher.Constraint("Angle", 0, Q("-120 deg")),
    Sketcher.Constraint("DistanceY", 0, 2, -1, 1, 27.0),
    Sketcher.Constraint("DistanceY", 3, 2, -1, 1, 22.0),
    Sketcher.Constraint("DistanceX", 1, 2, 6, 2, 58.0),
    Sketcher.Constraint("DistanceX", 1, 2, 1, 1, 2.886751),
    Sketcher.Constraint("DistanceX", 2, 2, -1, 1, 41.886751),
])
pocket1 = doc.addObject("PartDesign::Pocket", "Pocket")
body.addObject(pocket1)
pocket1.Profile = sketch2
pocket1.Length = 3
pocket1.Reversed = True

# Sketch on XZ plane
sketch3 = doc.addObject("Sketcher::SketchObject", "Sketch002")
body.addObject(sketch3)
sketch3.AttachmentSupport = (doc.XZ_Plane, [""])
sketch3.MapMode = "FlatFace"
sketch3.addGeometry([
    Part.Circle(V(-35, 15, 0), V(0, 0, 1), 2.5),
    Part.Circle(V(35, 15, 0), V(0, 0, 1), 2.5),
    Part.Circle(V(0, -15, 0), V(0, 0, 1), 2.5),
], False)
sketch3.addConstraint([
    Sketcher.Constraint("Equal", 0, 1),
    Sketcher.Constraint("Equal", 1, 2),
    Sketcher.Constraint("Symmetric", 0, 3, 1, 3, -2),
    Sketcher.Constraint("PointOnObject", 2, 3, -2),
    Sketcher.Constraint("Diameter", 0, 5.0),
    Sketcher.Constraint("DistanceX", 0, 3, -1, 1, 35.0),
    Sketcher.Constraint("DistanceY", -1, 1, 0, 3, 15.0),
    Sketcher.Constraint("DistanceY", 2, 3, -1, 1, 15.0),
])
pocket2 = doc.addObject("PartDesign::Pocket", "Pocket001")
body.addObject(pocket2)
pocket2.Profile = sketch3
pocket2.Length = 2.5

doc.recompute()
